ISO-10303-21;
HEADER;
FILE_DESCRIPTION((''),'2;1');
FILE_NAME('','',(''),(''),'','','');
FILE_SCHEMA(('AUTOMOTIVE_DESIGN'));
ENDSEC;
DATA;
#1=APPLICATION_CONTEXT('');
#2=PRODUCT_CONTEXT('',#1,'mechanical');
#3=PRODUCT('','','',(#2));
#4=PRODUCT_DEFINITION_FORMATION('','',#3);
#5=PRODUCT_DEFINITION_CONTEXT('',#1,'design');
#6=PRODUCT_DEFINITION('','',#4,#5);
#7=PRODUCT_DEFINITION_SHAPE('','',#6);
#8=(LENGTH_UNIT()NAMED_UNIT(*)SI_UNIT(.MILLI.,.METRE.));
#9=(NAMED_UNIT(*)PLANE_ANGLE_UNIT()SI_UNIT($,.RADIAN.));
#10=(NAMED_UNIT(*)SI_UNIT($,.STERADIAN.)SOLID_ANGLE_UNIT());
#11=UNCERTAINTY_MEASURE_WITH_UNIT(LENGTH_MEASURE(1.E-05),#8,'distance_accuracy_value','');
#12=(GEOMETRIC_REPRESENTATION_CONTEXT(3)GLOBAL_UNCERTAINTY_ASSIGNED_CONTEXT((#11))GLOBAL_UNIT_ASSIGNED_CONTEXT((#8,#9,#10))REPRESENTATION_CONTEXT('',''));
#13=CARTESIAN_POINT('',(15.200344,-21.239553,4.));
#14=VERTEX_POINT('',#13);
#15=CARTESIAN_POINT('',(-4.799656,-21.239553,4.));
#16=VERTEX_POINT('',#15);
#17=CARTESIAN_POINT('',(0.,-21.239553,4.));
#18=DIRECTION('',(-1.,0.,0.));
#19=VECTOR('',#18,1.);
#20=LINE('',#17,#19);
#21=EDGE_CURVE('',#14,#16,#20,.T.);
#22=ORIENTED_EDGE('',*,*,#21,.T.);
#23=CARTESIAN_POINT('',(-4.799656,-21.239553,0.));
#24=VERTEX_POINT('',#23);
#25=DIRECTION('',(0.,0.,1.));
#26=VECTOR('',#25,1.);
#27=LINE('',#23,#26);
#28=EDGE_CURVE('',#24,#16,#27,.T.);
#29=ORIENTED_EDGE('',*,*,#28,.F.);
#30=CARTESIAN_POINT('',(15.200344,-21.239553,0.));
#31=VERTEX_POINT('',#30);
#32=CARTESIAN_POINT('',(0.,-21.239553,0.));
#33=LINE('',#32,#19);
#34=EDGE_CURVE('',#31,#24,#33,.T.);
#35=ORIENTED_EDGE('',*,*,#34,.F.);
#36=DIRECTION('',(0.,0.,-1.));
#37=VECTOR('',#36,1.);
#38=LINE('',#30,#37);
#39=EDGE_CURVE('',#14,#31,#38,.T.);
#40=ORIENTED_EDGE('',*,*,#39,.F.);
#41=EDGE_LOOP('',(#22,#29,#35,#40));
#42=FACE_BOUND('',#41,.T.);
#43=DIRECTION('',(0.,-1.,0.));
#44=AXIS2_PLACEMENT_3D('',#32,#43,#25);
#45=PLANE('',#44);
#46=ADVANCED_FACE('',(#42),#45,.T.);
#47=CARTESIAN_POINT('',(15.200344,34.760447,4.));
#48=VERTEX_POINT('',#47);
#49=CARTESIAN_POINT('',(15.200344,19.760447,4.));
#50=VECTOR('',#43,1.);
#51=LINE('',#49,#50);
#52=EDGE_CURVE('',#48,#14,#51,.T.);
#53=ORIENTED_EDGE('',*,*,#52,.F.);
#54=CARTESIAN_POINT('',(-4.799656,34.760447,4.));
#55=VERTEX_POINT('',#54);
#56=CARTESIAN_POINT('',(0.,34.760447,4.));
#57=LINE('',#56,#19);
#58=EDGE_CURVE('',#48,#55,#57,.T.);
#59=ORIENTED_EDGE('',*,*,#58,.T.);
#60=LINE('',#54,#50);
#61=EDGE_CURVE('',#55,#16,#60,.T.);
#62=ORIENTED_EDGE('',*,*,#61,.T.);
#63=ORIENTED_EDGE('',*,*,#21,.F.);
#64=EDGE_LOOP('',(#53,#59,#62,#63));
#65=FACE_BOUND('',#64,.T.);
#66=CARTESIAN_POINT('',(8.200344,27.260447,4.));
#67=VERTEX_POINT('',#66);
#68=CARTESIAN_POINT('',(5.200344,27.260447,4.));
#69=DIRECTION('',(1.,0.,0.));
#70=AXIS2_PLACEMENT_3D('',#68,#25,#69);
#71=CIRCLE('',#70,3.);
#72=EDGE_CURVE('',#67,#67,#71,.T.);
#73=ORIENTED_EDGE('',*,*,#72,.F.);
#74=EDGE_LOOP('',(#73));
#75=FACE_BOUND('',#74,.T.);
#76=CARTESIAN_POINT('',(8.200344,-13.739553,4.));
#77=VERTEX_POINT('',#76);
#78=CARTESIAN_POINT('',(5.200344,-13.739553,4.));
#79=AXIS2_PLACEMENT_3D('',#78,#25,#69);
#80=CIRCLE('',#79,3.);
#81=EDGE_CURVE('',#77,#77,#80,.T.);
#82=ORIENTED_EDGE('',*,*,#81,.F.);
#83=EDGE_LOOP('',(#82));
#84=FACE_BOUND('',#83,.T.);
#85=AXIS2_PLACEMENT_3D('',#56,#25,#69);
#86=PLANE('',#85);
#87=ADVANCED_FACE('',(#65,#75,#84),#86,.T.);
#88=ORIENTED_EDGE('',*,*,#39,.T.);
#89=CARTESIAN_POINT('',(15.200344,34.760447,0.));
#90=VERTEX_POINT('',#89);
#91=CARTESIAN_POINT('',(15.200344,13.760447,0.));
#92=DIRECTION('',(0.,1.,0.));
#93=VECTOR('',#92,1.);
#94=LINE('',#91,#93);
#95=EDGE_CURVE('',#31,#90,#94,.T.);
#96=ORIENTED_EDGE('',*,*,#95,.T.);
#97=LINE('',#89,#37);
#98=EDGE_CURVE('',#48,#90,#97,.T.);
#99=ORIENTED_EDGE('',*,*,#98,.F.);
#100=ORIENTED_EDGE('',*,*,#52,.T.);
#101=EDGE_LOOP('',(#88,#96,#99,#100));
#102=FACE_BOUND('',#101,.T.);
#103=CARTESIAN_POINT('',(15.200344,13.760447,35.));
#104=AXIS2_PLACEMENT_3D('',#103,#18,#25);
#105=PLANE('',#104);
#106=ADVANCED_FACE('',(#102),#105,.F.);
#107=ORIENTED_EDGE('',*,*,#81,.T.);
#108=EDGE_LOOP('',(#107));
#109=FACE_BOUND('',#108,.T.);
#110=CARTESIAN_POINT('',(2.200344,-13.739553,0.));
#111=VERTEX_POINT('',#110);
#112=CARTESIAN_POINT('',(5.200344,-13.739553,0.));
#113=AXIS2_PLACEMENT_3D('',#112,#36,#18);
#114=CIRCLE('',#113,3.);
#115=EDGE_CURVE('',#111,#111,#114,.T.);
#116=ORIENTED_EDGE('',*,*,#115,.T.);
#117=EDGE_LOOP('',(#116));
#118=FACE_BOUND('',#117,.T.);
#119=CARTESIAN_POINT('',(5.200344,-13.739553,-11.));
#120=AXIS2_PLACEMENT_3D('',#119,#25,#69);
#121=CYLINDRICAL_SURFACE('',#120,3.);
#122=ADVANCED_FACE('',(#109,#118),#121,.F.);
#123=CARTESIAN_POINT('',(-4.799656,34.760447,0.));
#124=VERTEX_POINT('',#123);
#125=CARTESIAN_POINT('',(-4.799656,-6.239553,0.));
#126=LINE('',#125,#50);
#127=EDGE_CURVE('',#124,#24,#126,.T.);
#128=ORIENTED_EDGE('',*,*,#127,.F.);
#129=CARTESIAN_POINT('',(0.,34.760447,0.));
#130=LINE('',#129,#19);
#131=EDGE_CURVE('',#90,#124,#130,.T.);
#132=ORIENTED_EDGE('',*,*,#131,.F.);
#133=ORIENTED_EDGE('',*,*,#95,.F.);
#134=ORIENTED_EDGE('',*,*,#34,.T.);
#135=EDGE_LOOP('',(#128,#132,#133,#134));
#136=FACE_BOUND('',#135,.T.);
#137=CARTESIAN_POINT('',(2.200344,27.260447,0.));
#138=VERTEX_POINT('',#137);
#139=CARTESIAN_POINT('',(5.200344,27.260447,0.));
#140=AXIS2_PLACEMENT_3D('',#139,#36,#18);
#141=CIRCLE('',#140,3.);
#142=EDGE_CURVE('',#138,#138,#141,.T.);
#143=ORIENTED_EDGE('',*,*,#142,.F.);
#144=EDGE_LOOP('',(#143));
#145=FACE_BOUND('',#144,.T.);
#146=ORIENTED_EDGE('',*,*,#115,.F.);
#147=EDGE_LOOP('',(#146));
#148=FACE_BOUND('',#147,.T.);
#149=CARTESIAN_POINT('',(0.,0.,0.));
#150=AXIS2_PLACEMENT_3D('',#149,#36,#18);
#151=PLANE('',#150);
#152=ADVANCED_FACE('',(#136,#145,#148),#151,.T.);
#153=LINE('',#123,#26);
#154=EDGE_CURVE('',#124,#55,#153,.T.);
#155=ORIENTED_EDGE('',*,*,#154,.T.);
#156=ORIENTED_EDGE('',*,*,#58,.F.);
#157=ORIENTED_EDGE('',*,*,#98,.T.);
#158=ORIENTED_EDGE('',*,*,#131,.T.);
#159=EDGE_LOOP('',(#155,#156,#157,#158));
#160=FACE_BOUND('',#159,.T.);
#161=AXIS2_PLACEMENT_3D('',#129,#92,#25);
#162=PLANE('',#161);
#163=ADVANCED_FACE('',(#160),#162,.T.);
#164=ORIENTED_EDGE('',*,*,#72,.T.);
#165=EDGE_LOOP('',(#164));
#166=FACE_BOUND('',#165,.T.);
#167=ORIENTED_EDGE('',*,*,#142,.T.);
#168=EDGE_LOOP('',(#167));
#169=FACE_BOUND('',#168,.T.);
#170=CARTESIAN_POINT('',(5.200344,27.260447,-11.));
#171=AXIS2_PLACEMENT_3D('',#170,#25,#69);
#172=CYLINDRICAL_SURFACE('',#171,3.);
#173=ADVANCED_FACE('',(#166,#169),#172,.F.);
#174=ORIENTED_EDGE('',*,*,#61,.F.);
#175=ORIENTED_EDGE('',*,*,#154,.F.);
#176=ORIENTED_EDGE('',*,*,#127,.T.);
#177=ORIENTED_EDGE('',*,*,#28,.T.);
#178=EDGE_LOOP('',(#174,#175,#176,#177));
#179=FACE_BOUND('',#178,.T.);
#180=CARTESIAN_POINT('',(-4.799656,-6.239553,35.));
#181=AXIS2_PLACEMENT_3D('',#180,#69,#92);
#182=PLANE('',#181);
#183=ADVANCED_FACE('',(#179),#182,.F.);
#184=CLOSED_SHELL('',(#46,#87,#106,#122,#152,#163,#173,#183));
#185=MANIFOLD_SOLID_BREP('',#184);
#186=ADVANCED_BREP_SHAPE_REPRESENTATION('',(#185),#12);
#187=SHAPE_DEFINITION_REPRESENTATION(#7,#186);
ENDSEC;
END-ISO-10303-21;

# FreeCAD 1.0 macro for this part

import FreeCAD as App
import Part
import Sketcher

doc = App.newDocument("Part")
params = doc.addObject("Spreadsheet::Sheet", "Params")
for row, (alias, value) in enumerate([
    ("sketch1_width", "15 mm"),
    ("sketch1_width2", "20 mm"),
    ("sketch1_height", "6 mm"),
    ("pad1_length", "35 mm"),
    ("sketch2_diameter", "3 mm"),
    ("pocket1_length", "15 mm"),
    ("sketch3_width", "26 mm"),
    ("sketch3_height", "4 mm"),
    ("pad2_length", "20 mm"),
    ("sketch4_width", "20 mm"),
    ("sketch4_height", "4 mm"),
    ("pad3_length", "15 mm"),
    ("sketch5_diameter", "6 mm"),
    ("pocket2_length", "15 mm"),
    ("sketch6_width", "15 mm"),
    ("sketch6_height", "5 mm"),
    ("pad4_length", "31 mm"),
    ("sketch7_width", "20 mm"),
    ("sketch7_width2", "15 mm"),
    ("sketch7_height", "6 mm"),
    ("sketch7_height2", "26 mm"),
    ("pocket3_length", "31 mm"),
], start=1):
    params.set(f"A{row}", alias)
    params.set(f"B{row}", "=" + value)
    params.setAlias(f"B{row}", alias)

body = doc.addObject("PartDesign::Body", "Body")

sketch1 = body.newObject("Sketcher::SketchObject", "Sketch")
sketch1.AttachmentSupport = (doc.getObject("XY_Plane"), [""])
sketch1.MapMode = "FlatFace"
sketch1.addGeometry([
    Part.LineSegment(App.Vector(0.200344, 13.760447, 0), App.Vector(15.200344, 13.760447, 0)),
    Part.LineSegment(App.Vector(15.200344, 13.760447, 0), App.Vector(15.200344, 19.760447, 0)),
    Part.LineSegment(App.Vector(15.200344, 19.760447, 0), App.Vector(-4.799656, 19.760447, 0)),
    Part.LineSegment(App.Vector(-4.799656, 19.760447, 0), App.Vector(-4.799656, -6.239553, 0)),
    Part.LineSegment(App.Vector(-4.799656, -6.239553, 0), App.Vector(0.200344, -6.239553, 0)),
    Part.LineSegment(App.Vector(0.200344, -6.239553, 0), App.Vector(0.200344, 13.760447, 0)),
], False)
sketch1.addConstraint([
    Sketcher.Constraint("Coincident", 0, 2, 1, 1),
    Sketcher.Constraint("Coincident", 1, 2, 2, 1),
    Sketcher.Constraint("Coincident", 2, 2, 3, 1),
    Sketcher.Constraint("Coincident", 3, 2, 4, 1),
    Sketcher.Constraint("Coincident", 4, 2, 5, 1),
    Sketcher.Constraint("Coincident", 5, 2, 0, 1),
    Sketcher.Constraint("Horizontal", 0),
    Sketcher.Constraint("Vertical", 1),
    Sketcher.Constraint("Horizontal", 2),
    Sketcher.Constraint("Vertical", 3),
    Sketcher.Constraint("Horizontal", 4),
    Sketcher.Constraint("Vertical", 5),
    Sketcher.Constraint("Equal", 2, 5),
    Sketcher.Constraint("DistanceX", 0, 1, 0, 2, 15.0),
    Sketcher.Constraint("DistanceX", 2, 2, 2, 1, 20.0),
    Sketcher.Constraint("DistanceY", 1, 1, 1, 2, 6.0),
    Sketcher.Constraint("DistanceX", -1, 1, 0, 2, 15.200344),
    Sketcher.Constraint("DistanceY", -1, 1, 0, 2, 13.760447),
])
sketch1.setExpression("Constraints[13]", "Params.sketch1_width")
sketch1.setExpression("Constraints[14]", "Params.sketch1_width2")
sketch1.setExpression("Constraints[15]", "Params.sketch1_height")
pad1 = body.newObject("PartDesign::Pad", "Pad")
pad1.Profile = sketch1
pad1.setExpression("Length", "Params.pad1_length")

sketch2 = body.newObject("Sketcher::SketchObject", "Sketch001")
sketch2.AttachmentSupport = (doc.getObject("XZ_Plane"), [""])
sketch2.MapMode = "FlatFace"
sketch2.AttachmentOffset = App.Placement(App.Vector(0, 0, -13.760447), App.Rotation())
sketch2.addGeometry([
    Part.Circle(App.Vector(7.700344, 29, 0), App.Vector(0, 0, 1), 1.5),
    Part.Circle(App.Vector(7.700344, 22, 0), App.Vector(0, 0, 1), 1.5),
    Part.Circle(App.Vector(7.700344, 15, 0), App.Vector(0, 0, 1), 1.5),
], False)
sketch2.addConstraint([
    Sketcher.Constraint("Equal", 0, 1),
    Sketcher.Constraint("Equal", 1, 2),
    Sketcher.Constraint("Vertical", 0, 3, 1, 3),
    Sketcher.Constraint("Vertical", 1, 3, 2, 3),
    Sketcher.Constraint("Diameter", 0, 3.0),
    Sketcher.Constraint("DistanceY", -1, 1, 0, 3, 29.0),
    Sketcher.Constraint("DistanceY", -1, 1, 1, 3, 22.0),
    Sketcher.Constraint("DistanceY", -1, 1, 2, 3, 15.0),
    Sketcher.Constraint("DistanceX", -1, 1, 0, 3, 7.700344),
])
sketch2.setExpression("Constraints[4]", "Params.sketch2_diameter")
pocket1 = body.newObject("PartDesign::Pocket", "Pocket")
pocket1.Profile = sketch2
pocket1.setExpression("Length", "Params.pocket1_length")

sketch3 = body.newObject("Sketcher::SketchObject", "Sketch002")
sketch3.AttachmentSupport = (doc.getObject("YZ_Plane"), [""])
sketch3.MapMode = "FlatFace"
sketch3.AttachmentOffset = App.Placement(App.Vector(0, 0, -4.799656), App.Rotation())
sketch3.addGeometry([
    Part.LineSegment(App.Vector(19.760447, 0, 0), App.Vector(-6.239553, 0, 0)),
    Part.LineSegment(App.Vector(-6.239553, 0, 0), App.Vector(-6.239553, 4, 0)),
    Part.LineSegment(App.Vector(-6.239553, 4, 0), App.Vector(19.760447, 4, 0)),
    Part.LineSegment(App.Vector(19.760447, 4, 0), App.Vector(19.760447, 0, 0)),
], False)
sketch3.addConstraint([
    Sketcher.Constraint("Coincident", 0, 2, 1, 1),
    Sketcher.Constraint("Coincident", 1, 2, 2, 1),
    Sketcher.Constraint("Coincident", 2, 2, 3, 1),
    Sketcher.Constraint("Coincident", 3, 2, 0, 1),
    Sketcher.Constraint("Horizontal", 0),
    Sketcher.Constraint("Vertical", 1),
    Sketcher.Constraint("Horizontal", 2),
    Sketcher.Constraint("Vertical", 3),
    Sketcher.Constraint("PointOnObject", 0, 2, -1),
    Sketcher.Constraint("DistanceX", 0, 2, 0, 1, 26.0),
    Sketcher.Constraint("DistanceY", 1, 1, 1, 2, 4.0),
    Sketcher.Constraint("DistanceX", 0, 2, -1, 1, 6.239553),
])
sketch3.setExpression("Constraints[9]", "Params.sketch3_width")
sketch3.setExpression("Constraints[10]", "Params.sketch3_height")
pad2 = body.newObject("PartDesign::Pad", "Pad001")
pad2.Profile = sketch3
pad2.setExpression("Length", "Params.pad2_length")

sketch4 = body.newObject("Sketcher::SketchObject", "Sketch003")
sketch4.AttachmentSupport = (doc.getObject("XZ_Plane"), [""])
sketch4.MapMode = "FlatFace"
sketch4.AttachmentOffset = App.Placement(App.Vector(0, 0, -19.760447), App.Rotation())
sketch4.addGeometry([
    Part.LineSegment(App.Vector(-4.799656, 4, 0), App.Vector(15.200344, 4, 0)),
    Part.LineSegment(App.Vector(15.200344, 4, 0), App.Vector(15.200344, 0, 0)),
    Part.LineSegment(App.Vector(15.200344, 0, 0), App.Vector(-4.799656, 0, 0)),
    Part.LineSegment(App.Vector(-4.799656, 0, 0), App.Vector(-4.799656, 4, 0)),
], False)
sketch4.addConstraint([
    Sketcher.Constraint("Coincident", 0, 2, 1, 1),
    Sketcher.Constraint("Coincident", 1, 2, 2, 1),
    Sketcher.Constraint("Coincident", 2, 2, 3, 1),
    Sketcher.Constraint("Coincident", 3, 2, 0, 1),
    Sketcher.Constraint("Horizontal", 0),
    Sketcher.Constraint("Vertical", 1),
    Sketcher.Constraint("Horizontal", 2),
    Sketcher.Constraint("Vertical", 3),
    Sketcher.Constraint("PointOnObject", 1, 2, -1),
    Sketcher.Constraint("DistanceX", 0, 1, 0, 2, 20.0),
    Sketcher.Constraint("DistanceY", 1, 2, 1, 1, 4.0),
    Sketcher.Constraint("DistanceX", -1, 1, 0, 2, 15.200344),
])
sketch4.setExpression("Constraints[9]", "Params.sketch4_width")
sketch4.setExpression("Constraints[10]", "Params.sketch4_height")
pad3 = body.newObject("PartDesign::Pad", "Pad002")
pad3.Profile = sketch4
pad3.setExpression("Length", "Params.pad3_length")
pad3.Reversed = True
doc.recompute()

datumplane = body.newObject("PartDesign::Plane", "DatumPlane")
datumplane.AttachmentSupport = (doc.getObject("XZ_Plane"), [""])
datumplane.MapMode = "FlatFace"
datumplane.AttachmentOffset = App.Placement(App.Vector(0, 0, -6.760447), App.Rotation())
mirrored = body.newObject("PartDesign::Mirrored", "Mirrored")
mirrored.Originals = [pad3]
mirrored.MirrorPlane = (datumplane, [""])
body.Tip = mirrored

sketch5 = body.newObject("Sketcher::SketchObject", "Sketch004")
sketch5.AttachmentSupport = (doc.getObject("XY_Plane"), [""])
sketch5.MapMode = "FlatFace"
sketch5.AttachmentOffset = App.Placement(App.Vector(0, 0, 4), App.Rotation())
sketch5.addGeometry([
    Part.Circle(App.Vector(5.200344, -13.739553, 0), App.Vector(0, 0, 1), 3),
    Part.Circle(App.Vector(5.200344, 27.260447, 0), App.Vector(0, 0, 1), 3),
], False)
sketch5.addConstraint([
    Sketcher.Constraint("Equal", 0, 1),
    Sketcher.Constraint("Vertical", 0, 3, 1, 3),
    Sketcher.Constraint("Diameter", 0, 6.0),
    Sketcher.Constraint("DistanceY", 0, 3, 1, 3, 41.0),
    Sketcher.Constraint("DistanceX", -1, 1, 0, 3, 5.200344),
    Sketcher.Constraint("DistanceY", 0, 3, -1, 1, 13.739553),
])
sketch5.setExpression("Constraints[2]", "Params.sketch5_diameter")
pocket2 = body.newObject("PartDesign::Pocket", "Pocket001")
pocket2.Profile = sketch5
pocket2.setExpression("Length", "Params.pocket2_length")

sketch6 = body.newObject("Sketcher::SketchObject", "Sketch005")
sketch6.AttachmentSupport = (doc.getObject("XY_Plane"), [""])
sketch6.MapMode = "FlatFace"
sketch6.AttachmentOffset = App.Placement(App.Vector(0, 0, 4), App.Rotation())
sketch6.addGeometry([
    Part.LineSegment(App.Vector(0.200344, -1.239553, 0), App.Vector(0.200344, -6.239553, 0)),
    Part.LineSegment(App.Vector(0.200344, -6.239553, 0), App.Vector(15.200344, -6.239553, 0)),
    Part.LineSegment(App.Vector(15.200344, -6.239553, 0), App.Vector(15.200344, -1.239553, 0)),
    Part.LineSegment(App.Vector(15.200344, -1.239553, 0), App.Vector(0.200344, -1.239553, 0)),
], False)
sketch6.addConstraint([
    Sketcher.Constraint("Coincident", 0, 2, 1, 1),
    Sketcher.Constraint("Coincident", 1, 2, 2, 1),
    Sketcher.Constraint("Coincident", 2, 2, 3, 1),
    Sketcher.Constraint("Coincident", 3, 2, 0, 1),
    Sketcher.Constraint("Vertical", 0),
    Sketcher.Constraint("Horizontal", 1),
    Sketcher.Constraint("Vertical", 2),
    Sketcher.Constraint("Horizontal", 3),
    Sketcher.Constraint("DistanceX", 1, 1, 1, 2, 15.0),
    Sketcher.Constraint("DistanceY", 0, 2, 0, 1, 5.0),
    Sketcher.Constraint("DistanceX", -1, 1, 0, 2, 0.200344),
    Sketcher.Constraint("DistanceY", 0, 2, -1, 1, 6.239553),
])
sketch6.setExpression("Constraints[8]", "Params.sketch6_width")
sketch6.setExpression("Constraints[9]", "Params.sketch6_height")
pad4 = body.newObject("PartDesign::Pad", "Pad003")
pad4.Profile = sketch6
pad4.setExpression("Length", "Params.pad4_length")

sketch7 = body.newObject("Sketcher::SketchObject", "Sketch006")
sketch7.AttachmentSupport = (doc.getObject("XY_Plane"), [""])
sketch7.MapMode = "FlatFace"
sketch7.AttachmentOffset = App.Placement(App.Vector(0, 0, 35), App.Rotation())
sketch7.addGeometry([
    Part.LineSegment(App.Vector(15.200344, 13.760447, 0), App.Vector(15.200344, 19.760447, 0)),
    Part.LineSegment(App.Vector(15.200344, 19.760447, 0), App.Vector(-4.799656, 19.760447, 0)),
    Part.LineSegment(App.Vector(-4.799656, 19.760447, 0), App.Vector(-4.799656, -6.239553, 0)),
    Part.LineSegment(App.Vector(-4.799656, -6.239553, 0), App.Vector(15.200344, -6.239553, 0)),
    Part.LineSegment(App.Vector(15.200344, -6.239553, 0), App.Vector(15.200344, -1.239553, 0)),
    Part.LineSegment(App.Vector(15.200344, -1.239553, 0), App.Vector(0.200344, -1.239553, 0)),
    Part.LineSegment(App.Vector(0.200344, -1.239553, 0), App.Vector(0.200344, 13.760447, 0)),
    Part.LineSegment(App.Vector(0.200344, 13.760447, 0), App.Vector(15.200344, 13.760447, 0)),
], False)
sketch7.addConstraint([
    Sketcher.Constraint("Coincident", 0, 2, 1, 1),
    Sketcher.Constraint("Coincident", 1, 2, 2, 1),
    Sketcher.Constraint("Coincident", 2, 2, 3, 1),
    Sketcher.Constraint("Coincident", 3, 2, 4, 1),
    Sketcher.Constraint("Coincident", 4, 2, 5, 1),
    Sketcher.Constraint("Coincident", 5, 2, 6, 1),
    Sketcher.Constraint("Coincident", 6, 2, 7, 1),
    Sketcher.Constraint("Coincident", 7, 2, 0, 1),
    Sketcher.Constraint("Vertical", 0),
    Sketcher.Constraint("Horizontal", 1),
    Sketcher.Constraint("Vertical", 2),
    Sketcher.Constraint("Horizontal", 3),
    Sketcher.Constraint("Vertical", 4),
    Sketcher.Constraint("Horizontal", 5),
    Sketcher.Constraint("Vertical", 6),
    Sketcher.Constraint("Horizontal", 7),
    Sketcher.Constraint("Vertical", 0, 2, 3, 2),
    Sketcher.Constraint("Equal", 7, 6),
    Sketcher.Constraint("DistanceX", 1, 2, 1, 1, 20.0),
    Sketcher.Constraint("DistanceX", 5, 2, 5, 1, 15.0),
    Sketcher.Constraint("DistanceY", 0, 1, 0, 2, 6.0),
    Sketcher.Constraint("DistanceY", 2, 2, 2, 1, 26.0),
    Sketcher.Constraint("DistanceX", -1, 1, 0, 2, 15.200344),
    Sketcher.Constraint("DistanceY", -1, 1, 0, 2, 19.760447),
])
sketch7.setExpression("Constraints[18]", "Params.sketch7_width")
sketch7.setExpression("Constraints[19]", "Params.sketch7_width2")
sketch7.setExpression("Constraints[20]", "Params.sketch7_height")
sketch7.setExpression("Constraints[21]", "Params.sketch7_height2")
pocket3 = body.newObject("PartDesign::Pocket", "Pocket002")
pocket3.Profile = sketch7
pocket3.setExpression("Length", "Params.pocket3_length")

doc.recompute()
